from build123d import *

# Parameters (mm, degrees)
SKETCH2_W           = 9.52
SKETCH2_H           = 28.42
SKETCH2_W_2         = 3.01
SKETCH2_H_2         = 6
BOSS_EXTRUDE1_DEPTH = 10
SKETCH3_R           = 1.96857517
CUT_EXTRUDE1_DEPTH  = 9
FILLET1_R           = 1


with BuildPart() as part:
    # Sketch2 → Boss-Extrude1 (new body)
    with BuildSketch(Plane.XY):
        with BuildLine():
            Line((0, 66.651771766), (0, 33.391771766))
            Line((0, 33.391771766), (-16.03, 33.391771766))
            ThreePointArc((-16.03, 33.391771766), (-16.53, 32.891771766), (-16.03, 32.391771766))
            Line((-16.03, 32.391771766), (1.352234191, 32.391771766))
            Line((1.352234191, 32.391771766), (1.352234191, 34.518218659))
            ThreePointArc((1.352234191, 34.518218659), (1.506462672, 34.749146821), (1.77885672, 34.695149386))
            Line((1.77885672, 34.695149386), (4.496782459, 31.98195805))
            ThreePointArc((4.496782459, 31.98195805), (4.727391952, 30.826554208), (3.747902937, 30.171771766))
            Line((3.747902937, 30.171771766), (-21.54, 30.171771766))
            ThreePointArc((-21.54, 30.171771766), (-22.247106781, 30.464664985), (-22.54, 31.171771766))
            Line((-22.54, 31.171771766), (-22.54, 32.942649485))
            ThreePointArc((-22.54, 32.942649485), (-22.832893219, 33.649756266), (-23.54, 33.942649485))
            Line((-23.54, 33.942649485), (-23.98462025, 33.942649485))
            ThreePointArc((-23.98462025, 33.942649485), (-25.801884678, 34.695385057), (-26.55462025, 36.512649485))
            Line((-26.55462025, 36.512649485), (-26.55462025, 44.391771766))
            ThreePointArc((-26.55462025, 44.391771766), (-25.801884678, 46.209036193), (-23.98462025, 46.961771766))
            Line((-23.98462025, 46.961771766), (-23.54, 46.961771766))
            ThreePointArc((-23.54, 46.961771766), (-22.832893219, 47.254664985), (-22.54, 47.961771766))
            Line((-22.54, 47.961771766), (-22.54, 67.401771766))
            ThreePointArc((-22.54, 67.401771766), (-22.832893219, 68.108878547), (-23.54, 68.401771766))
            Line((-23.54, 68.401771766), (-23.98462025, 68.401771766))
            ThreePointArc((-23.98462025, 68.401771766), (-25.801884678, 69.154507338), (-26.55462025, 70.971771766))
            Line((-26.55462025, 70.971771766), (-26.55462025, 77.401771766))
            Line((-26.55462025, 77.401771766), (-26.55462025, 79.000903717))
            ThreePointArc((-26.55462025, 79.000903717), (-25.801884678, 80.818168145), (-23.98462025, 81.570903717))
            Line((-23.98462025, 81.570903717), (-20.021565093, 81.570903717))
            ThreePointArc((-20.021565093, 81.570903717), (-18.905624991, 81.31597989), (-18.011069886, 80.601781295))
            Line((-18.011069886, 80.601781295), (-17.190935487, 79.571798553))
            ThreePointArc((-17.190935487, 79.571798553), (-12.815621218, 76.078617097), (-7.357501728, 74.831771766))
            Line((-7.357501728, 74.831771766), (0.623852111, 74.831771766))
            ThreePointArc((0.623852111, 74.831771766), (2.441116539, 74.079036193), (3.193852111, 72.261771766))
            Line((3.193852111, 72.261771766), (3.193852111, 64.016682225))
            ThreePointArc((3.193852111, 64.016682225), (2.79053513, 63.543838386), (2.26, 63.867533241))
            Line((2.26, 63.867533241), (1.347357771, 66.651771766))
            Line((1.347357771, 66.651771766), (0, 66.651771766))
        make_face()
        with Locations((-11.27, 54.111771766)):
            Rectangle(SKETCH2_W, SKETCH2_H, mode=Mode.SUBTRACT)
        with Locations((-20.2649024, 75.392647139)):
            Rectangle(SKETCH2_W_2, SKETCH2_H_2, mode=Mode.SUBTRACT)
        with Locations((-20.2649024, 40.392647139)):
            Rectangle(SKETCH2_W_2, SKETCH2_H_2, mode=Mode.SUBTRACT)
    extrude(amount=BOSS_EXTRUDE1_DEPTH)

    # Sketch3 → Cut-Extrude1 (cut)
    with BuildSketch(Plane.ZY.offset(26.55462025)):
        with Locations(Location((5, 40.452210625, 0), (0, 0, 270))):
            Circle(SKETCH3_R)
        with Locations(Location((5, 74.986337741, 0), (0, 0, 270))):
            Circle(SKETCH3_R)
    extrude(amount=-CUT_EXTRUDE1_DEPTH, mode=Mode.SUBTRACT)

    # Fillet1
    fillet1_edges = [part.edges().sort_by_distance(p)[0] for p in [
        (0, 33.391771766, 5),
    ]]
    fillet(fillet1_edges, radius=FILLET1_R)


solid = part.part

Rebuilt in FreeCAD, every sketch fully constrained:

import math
import FreeCAD as App
import Part
import Sketcher

V = App.Vector


def edges_at(feature, points):
    """Names of the edges that pass closest to the given points."""
    edges = feature.Shape.Edges
    near = lambda p: min(range(len(edges)), key=lambda i: edges[i].distToShape(Part.Vertex(*p))[0])
    return sorted({f"Edge{near(p) + 1}" for p in points})

doc = App.newDocument("Part")
body = doc.addObject("PartDesign::Body", "Body")

# Sketch on XY plane
sketch1 = doc.addObject("Sketcher::SketchObject", "Sketch")
body.addObject(sketch1)
sketch1.AttachmentSupport = (doc.XY_Plane, [""])
sketch1.MapMode = "FlatFace"
sketch1.addGeometry([
    Part.LineSegment(V(0, 33.39, 0), V(0, 66.65, 0)),  # 0
    Part.LineSegment(V(0, 66.65, 0), V(1.35, 66.65, 0)),  # 1
    Part.LineSegment(V(1.35, 66.65, 0), V(2.26, 63.87, 0)),  # 2
    Part.ArcOfCircle(Part.Circle(V(2.72, 64.02, 0), V(0, 0, 1), 0.48), math.radians(-162), math.radians(0)),  # 3
    Part.LineSegment(V(3.19, 64.02, 0), V(3.19, 72.26, 0)),  # 4
    Part.ArcOfCircle(Part.Circle(V(0.62, 72.26, 0), V(0, 0, 1), 2.57), math.radians(0), math.radians(90)),  # 5
    Part.LineSegment(V(0.62, 74.83, 0), V(-7.36, 74.83, 0)),  # 6
    Part.ArcOfCircle(Part.Circle(V(-7.36, 87.4, 0), V(0, 0, 1), 12.57), math.radians(-141), math.radians(-90)),  # 7
    Part.LineSegment(V(-17.19, 79.57, 0), V(-18.01, 80.6, 0)),  # 8
    Part.ArcOfCircle(Part.Circle(V(-20.02, 79, 0), V(0, 0, 1), 2.57), math.radians(39), math.radians(90)),  # 9
    Part.LineSegment(V(-20.02, 81.57, 0), V(-23.98, 81.57, 0)),  # 10
    Part.ArcOfCircle(Part.Circle(V(-23.98, 79, 0), V(0, 0, 1), 2.57), math.radians(90), math.radians(180)),  # 11
    Part.LineSegment(V(-26.55, 79, 0), V(-26.55, 70.97, 0)),  # 12
    Part.ArcOfCircle(Part.Circle(V(-23.98, 70.97, 0), V(0, 0, 1), 2.57), math.radians(180), math.radians(270)),  # 13
    Part.LineSegment(V(-23.98, 68.4, 0), V(-23.54, 68.4, 0)),  # 14
    Part.ArcOfCircle(Part.Circle(V(-23.54, 67.4, 0), V(0, 0, 1), 1), math.radians(0), math.radians(90)),  # 15
    Part.LineSegment(V(-22.54, 67.4, 0), V(-22.54, 47.96, 0)),  # 16
    Part.ArcOfCircle(Part.Circle(V(-23.54, 47.96, 0), V(0, 0, 1), 1), math.radians(-90), math.radians(0)),  # 17
    Part.LineSegment(V(-23.54, 46.96, 0), V(-23.98, 46.96, 0)),  # 18
    Part.ArcOfCircle(Part.Circle(V(-23.98, 44.39, 0), V(0, 0, 1), 2.57), math.radians(90), math.radians(180)),  # 19
    Part.LineSegment(V(-26.55, 44.39, 0), V(-26.55, 36.51, 0)),  # 20
    Part.ArcOfCircle(Part.Circle(V(-23.98, 36.51, 0), V(0, 0, 1), 2.57), math.radians(180), math.radians(270)),  # 21
    Part.LineSegment(V(-23.98, 33.94, 0), V(-23.54, 33.94, 0)),  # 22
    Part.ArcOfCircle(Part.Circle(V(-23.54, 32.94, 0), V(0, 0, 1), 1), math.radians(0), math.radians(90)),  # 23
    Part.LineSegment(V(-22.54, 32.94, 0), V(-22.54, 31.17, 0)),  # 24
    Part.ArcOfCircle(Part.Circle(V(-21.54, 31.17, 0), V(0, 0, 1), 1), math.radians(-180), math.radians(-90)),  # 25
    Part.LineSegment(V(-21.54, 30.17, 0), V(3.75, 30.17, 0)),  # 26
    Part.ArcOfCircle(Part.Circle(V(3.75, 31.23, 0), V(0, 0, 1), 1.06), math.radians(-90), math.radians(45)),  # 27
    Part.LineSegment(V(4.5, 31.98, 0), V(1.78, 34.7, 0)),  # 28
    Part.ArcOfCircle(Part.Circle(V(1.6, 34.52, 0), V(0, 0, 1), 0.25), math.radians(45), math.radians(180)),  # 29
    Part.LineSegment(V(1.35, 34.52, 0), V(1.35, 32.39, 0)),  # 30
    Part.LineSegment(V(1.35, 32.39, 0), V(-16.03, 32.39, 0)),  # 31
    Part.ArcOfCircle(Part.Circle(V(-16.03, 32.89, 0), V(0, 0, 1), 0.5), math.radians(90), math.radians(270)),  # 32
    Part.LineSegment(V(-16.03, 33.39, 0), V(0, 33.39, 0)),  # 33
    Part.LineSegment(V(-16.03, 39.9, 0), V(-16.03, 68.32, 0)),  # 34
    Part.LineSegment(V(-16.03, 68.32, 0), V(-6.51, 68.32, 0)),  # 35
    Part.LineSegment(V(-6.51, 68.32, 0), V(-6.51, 39.9, 0)),  # 36
    Part.LineSegment(V(-6.51, 39.9, 0), V(-16.03, 39.9, 0)),  # 37
    Part.LineSegment(V(-21.77, 37.39, 0), V(-21.77, 43.39, 0)),  # 38
    Part.LineSegment(V(-21.77, 43.39, 0), V(-18.76, 43.39, 0)),  # 39
    Part.LineSegment(V(-18.76, 43.39, 0), V(-18.76, 37.39, 0)),  # 40
    Part.LineSegment(V(-18.76, 37.39, 0), V(-21.77, 37.39, 0)),  # 41
    Part.LineSegment(V(-21.77, 72.39, 0), V(-21.77, 78.39, 0)),  # 42
    Part.LineSegment(V(-21.77, 78.39, 0), V(-18.76, 78.39, 0)),  # 43
    Part.LineSegment(V(-18.76, 78.39, 0), V(-18.76, 72.39, 0)),  # 44
    Part.LineSegment(V(-18.76, 72.39, 0), V(-21.77, 72.39, 0)),  # 45
], False)
sketch1.addConstraint([
    Sketcher.Constraint("Coincident", 0, 2, 1, 1),
    Sketcher.Constraint("Coincident", 1, 2, 2, 1),
    Sketcher.Constraint("Tangent", 2, 2, 3, 1),
    Sketcher.Constraint("Tangent", 3, 2, 4, 1),
    Sketcher.Constraint("Tangent", 4, 2, 5, 1),
    Sketcher.Constraint("Tangent", 5, 2, 6, 1),
    Sketcher.Constraint("Tangent", 6, 2, 7, 2),
    Sketcher.Constraint("Tangent", 7, 1, 8, 1),
    Sketcher.Constraint("Tangent", 8, 2, 9, 1),
    Sketcher.Constraint("Tangent", 9, 2, 10, 1),
    Sketcher.Constraint("Tangent", 10, 2, 11, 1),
    Sketcher.Constraint("Tangent", 11, 2, 12, 1),
    Sketcher.Constraint("Tangent", 12, 2, 13, 1),
    Sketcher.Constraint("Tangent", 13, 2, 14, 1),
    Sketcher.Constraint("Tangent", 14, 2, 15, 2),
    Sketcher.Constraint("Tangent", 15, 1, 16, 1),
    Sketcher.Constraint("Tangent", 16, 2, 17, 2),
    Sketcher.Constraint("Tangent", 17, 1, 18, 1),
    Sketcher.Constraint("Tangent", 18, 2, 19, 1),
    Sketcher.Constraint("Tangent", 19, 2, 20, 1),
    Sketcher.Constraint("Tangent", 20, 2, 21, 1),
    Sketcher.Constraint("Tangent", 21, 2, 22, 1),
    Sketcher.Constraint("Tangent", 22, 2, 23, 2),
    Sketcher.Constraint("Tangent", 23, 1, 24, 1),
    Sketcher.Constraint("Tangent", 24, 2, 25, 1),
    Sketcher.Constraint("Tangent", 25, 2, 26, 1),
    Sketcher.Constraint("Tangent", 26, 2, 27, 1),
    Sketcher.Constraint("Tangent", 27, 2, 28, 1),
    Sketcher.Constraint("Tangent", 28, 2, 29, 1),
    Sketcher.Constraint("Tangent", 29, 2, 30, 1),
    Sketcher.Constraint("Coincident", 30, 2, 31, 1),
    Sketcher.Constraint("Tangent", 31, 2, 32, 2),
    Sketcher.Constraint("Tangent", 32, 1, 33, 1),
    Sketcher.Constraint("Coincident", 33, 2, 0, 1),
    Sketcher.Constraint("Coincident", 34, 2, 35, 1),
    Sketcher.Constraint("Coincident", 35, 2, 36, 1),
    Sketcher.Constraint("Coincident", 36, 2, 37, 1),
    Sketcher.Constraint("Coincident", 37, 2, 34, 1),
    Sketcher.Constraint("Coincident", 38, 2, 39, 1),
    Sketcher.Constraint("Coincident", 39, 2, 40, 1),
    Sketcher.Constraint("Coincident", 40, 2, 41, 1),
    Sketcher.Constraint("Coincident", 41, 2, 38, 1),
    Sketcher.Constraint("Coincident", 42, 2, 43, 1),
    Sketcher.Constraint("Coincident", 43, 2, 44, 1),
    Sketcher.Constraint("Coincident", 44, 2, 45, 1),
    Sketcher.Constraint("Coincident", 45, 2, 42, 1),
    Sketcher.Constraint("Vertical", 0),
    Sketcher.Constraint("Horizontal", 1),
    Sketcher.Constraint("Vertical", 4),
    Sketcher.Constraint("Horizontal", 6),
    Sketcher.Constraint("Horizontal", 10),
    Sketcher.Constraint("Vertical", 12),
    Sketcher.Constraint("Horizontal", 14),
    Sketcher.Constraint("Vertical", 16),
    Sketcher.Constraint("Horizontal", 18),
    Sketcher.Constraint("Vertical", 20),
    Sketcher.Constraint("Horizontal", 22),
    Sketcher.Constraint("Vertical", 24),
    Sketcher.Constraint("Horizontal", 26),
    Sketcher.Constraint("Vertical", 30),
    Sketcher.Constraint("Horizontal", 31),
    Sketcher.Constraint("Horizontal", 33),
    Sketcher.Constraint("Vertical", 34),
    Sketcher.Constraint("Horizontal", 35),
    Sketcher.Constraint("Vertical", 36),
    Sketcher.Constraint("Horizontal", 37),
    Sketcher.Constraint("Vertical", 38),
    Sketcher.Constraint("Horizontal", 39),
    Sketcher.Constraint("Vertical", 40),
    Sketcher.Constraint("Horizontal", 41),
    Sketcher.Constraint("Vertical", 42),
    Sketcher.Constraint("Horizontal", 43),
    Sketcher.Constraint("Vertical", 44),
    Sketcher.Constraint("Horizontal", 45),
    Sketcher.Constraint("Equal", 5, 9),
    Sketcher.Constraint("Equal", 9, 11),
    Sketcher.Constraint("Equal", 11, 13),
    Sketcher.Constraint("Equal", 15, 17),
    Sketcher.Constraint("Equal", 13, 19),
    Sketcher.Constraint("Equal", 19, 21),
    Sketcher.Constraint("Equal", 17, 23),
    Sketcher.Constraint("Equal", 23, 25),
    Sketcher.Constraint("PointOnObject", 0, 2, -2),
    Sketcher.Constraint("Vertical", 13, 3, 19, 3),
    Sketcher.Constraint("Vertical", 17, 3, 23, 3),
    Sketcher.Constraint("Vertical", 32, 1, 34, 2),
    Sketcher.Constraint("Vertical", 41, 2, 42, 2),
    Sketcher.Constraint("Vertical", 40, 2, 43, 2),
    Sketcher.Constraint("Equal", 40, 42),
    Sketcher.Constraint("Radius", 15, 1.0),
    Sketcher.Constraint("Radius", 32, 0.5),
    Sketcher.Constraint("DistanceY", 38, 1, 38, 2, 6.0),
    Sketcher.Constraint("Radius", 5, 2.57),
    Sketcher.Constraint("Radius", 7, 12.57),
    Sketcher.Constraint("Radius", 27, 1.06),
    Sketcher.Constraint("Radius", 29, 0.25),
    Sketcher.Constraint("DistanceX", 33, 1, 33, 2, 16.03),
    Sketcher.Constraint("DistanceX", 35, 1, 35, 2, 9.52),
    Sketcher.Constraint("DistanceX", 39, 1, 39, 2, 3.01),
    Sketcher.Constraint("DistanceY", 0, 1, 0, 2, 33.26),
    Sketcher.Constraint("DistanceY", 16, 2, 16, 1, 19.44),
    Sketcher.Constraint("DistanceY", 34, 1, 34, 2, 28.42),
    Sketcher.Constraint("Distance", 2, 2.93),
    Sketcher.Constraint("DistanceX", 15, 3, -1, 1, 23.54),
    Sketcher.Constraint("DistanceX", -1, 1, 2, 2, 2.26),
    Sketcher.Constraint("Radius", 3, 0.478837),
    Sketcher.Constraint("DistanceX", 14, 1, 14, 2, 0.44462),
    Sketcher.Constraint("DistanceY", 4, 1, 4, 2, 8.24509),
    Sketcher.Constraint("DistanceY", 12, 2, 12, 1, 8.029132),
    Sketcher.Constraint("DistanceX", 7, 3, -1, 1, 7.357502),
    Sketcher.Constraint("DistanceY", -1, 1, 7, 1, 79.571799),
    Sketcher.Constraint("Distance", 8, 1.316619),
    Sketcher.Constraint("Distance", 28, 3.840381),
    Sketcher.Constraint("DistanceX", 1, 1, 1, 2, 1.347358),
    Sketcher.Constraint("DistanceX", 10, 2, 10, 1, 3.963055),
    Sketcher.Constraint("DistanceX", 26, 1, 26, 2, 25.287903),
    Sketcher.Constraint("DistanceX", 31, 2, 31, 1, 17.382234),
    Sketcher.Constraint("DistanceY", 20, 2, 20, 1, 7.879122),
    Sketcher.Constraint("DistanceY", 24, 2, 24, 1, 1.770878),
    Sketcher.Constraint("DistanceY", -1, 1, 34, 2, 68.321772),
    Sketcher.Constraint("DistanceX", 38, 2, -1, 1, 21.769902),
    Sketcher.Constraint("DistanceY", -1, 1, 38, 2, 43.392647),
    Sketcher.Constraint("DistanceY", -1, 1, 42, 2, 78.392647),
])
pad1 = doc.addObject("PartDesign::Pad", "Pad")
body.addObject(pad1)
pad1.Profile = sketch1
pad1.Length = 10

# Sketch on YZ plane
sketch2 = doc.addObject("Sketcher::SketchObject", "Sketch001")
body.addObject(sketch2)
sketch2.AttachmentSupport = (doc.YZ_Plane, [""])
sketch2.MapMode = "FlatFace"
sketch2.AttachmentOffset = App.Placement(V(0, 0, -26.55462), App.Rotation())
sketch2.addGeometry([
    Part.Circle(V(40.5, 5, 0), V(0, 0, 1), 2),
    Part.Circle(V(75, 5, 0), V(0, 0, 1), 2),
], False)
sketch2.addConstraint([
    Sketcher.Constraint("Equal", 0, 1),
    Sketcher.Constraint("Horizontal", 0, 3, 1, 3),
    Sketcher.Constraint("DistanceY", -1, 1, 0, 3, 5.0),
    Sketcher.Constraint("Diameter", 0, 3.93715),
    Sketcher.Constraint("DistanceX", -1, 1, 0, 3, 40.452211),
    Sketcher.Constraint("DistanceX", -1, 1, 1, 3, 74.986338),
])
pocket1 = doc.addObject("PartDesign::Pocket", "Pocket")
body.addObject(pocket1)
pocket1.Profile = sketch2
pocket1.Length = 9
pocket1.Reversed = True
doc.recompute()

fillet = doc.addObject("PartDesign::Fillet", "Fillet")
body.addObject(fillet)
fillet.Base = (pocket1, edges_at(pocket1, [(0, 33.392, 5)]))
fillet.Radius = 1

doc.recompute()
